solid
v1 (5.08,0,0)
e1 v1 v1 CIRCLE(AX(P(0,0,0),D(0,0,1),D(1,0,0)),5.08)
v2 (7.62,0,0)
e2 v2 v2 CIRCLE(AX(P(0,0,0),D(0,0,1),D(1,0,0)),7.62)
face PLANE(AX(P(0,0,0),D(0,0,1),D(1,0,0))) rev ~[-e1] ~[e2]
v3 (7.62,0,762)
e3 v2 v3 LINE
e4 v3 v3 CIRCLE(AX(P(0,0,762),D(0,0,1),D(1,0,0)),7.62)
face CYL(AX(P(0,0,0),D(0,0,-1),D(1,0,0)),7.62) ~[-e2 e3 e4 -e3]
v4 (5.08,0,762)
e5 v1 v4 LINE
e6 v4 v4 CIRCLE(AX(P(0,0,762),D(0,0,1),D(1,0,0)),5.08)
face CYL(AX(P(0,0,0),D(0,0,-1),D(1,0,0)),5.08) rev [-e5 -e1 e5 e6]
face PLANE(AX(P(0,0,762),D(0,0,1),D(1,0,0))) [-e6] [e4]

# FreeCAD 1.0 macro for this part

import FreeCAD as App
import Part
import Sketcher

V = App.Vector
Q = App.Units.Quantity

doc = App.newDocument("Part")
params = doc.addObject("Spreadsheet::Sheet", "Params")
for row, (alias, value) in enumerate([
    ("sketch1_diameter", "0.6 in"),
    ("sketch1_diameter2", "0.4 in"),
    ("pad1_length", "30 in"),
], start=1):
    params.set(f"A{row}", alias)
    params.set(f"B{row}", "=" + value)
    params.setAlias(f"B{row}", alias)

body = doc.addObject("PartDesign::Body", "Body")

# Sketch on XY plane
sketch1 = doc.addObject("Sketcher::SketchObject", "Sketch")
body.addObject(sketch1)
sketch1.AttachmentSupport = (doc.XY_Plane, [""])
sketch1.MapMode = "FlatFace"
sketch1.addGeometry([
    Part.Circle(V(0, 0, 0), V(0, 0, 1), 8),
    Part.Circle(V(0, 0, 0), V(0, 0, 1), 5),
], False)
sketch1.addConstraint([
    Sketcher.Constraint("Coincident", 0, 3, -1, 1),
    Sketcher.Constraint("Coincident", 1, 3, -1, 1),
    Sketcher.Constraint("Diameter", 0, Q("0.6 in")),
    Sketcher.Constraint("Diameter", 1, Q("0.4 in")),
])
sketch1.setExpression("Constraints[2]", "Params.sketch1_diameter")
sketch1.setExpression("Constraints[3]", "Params.sketch1_diameter2")
pad1 = doc.addObject("PartDesign::Pad", "Pad")
body.addObject(pad1)
pad1.Profile = sketch1
pad1.setExpression("Length", "Params.pad1_length")

doc.recompute()
